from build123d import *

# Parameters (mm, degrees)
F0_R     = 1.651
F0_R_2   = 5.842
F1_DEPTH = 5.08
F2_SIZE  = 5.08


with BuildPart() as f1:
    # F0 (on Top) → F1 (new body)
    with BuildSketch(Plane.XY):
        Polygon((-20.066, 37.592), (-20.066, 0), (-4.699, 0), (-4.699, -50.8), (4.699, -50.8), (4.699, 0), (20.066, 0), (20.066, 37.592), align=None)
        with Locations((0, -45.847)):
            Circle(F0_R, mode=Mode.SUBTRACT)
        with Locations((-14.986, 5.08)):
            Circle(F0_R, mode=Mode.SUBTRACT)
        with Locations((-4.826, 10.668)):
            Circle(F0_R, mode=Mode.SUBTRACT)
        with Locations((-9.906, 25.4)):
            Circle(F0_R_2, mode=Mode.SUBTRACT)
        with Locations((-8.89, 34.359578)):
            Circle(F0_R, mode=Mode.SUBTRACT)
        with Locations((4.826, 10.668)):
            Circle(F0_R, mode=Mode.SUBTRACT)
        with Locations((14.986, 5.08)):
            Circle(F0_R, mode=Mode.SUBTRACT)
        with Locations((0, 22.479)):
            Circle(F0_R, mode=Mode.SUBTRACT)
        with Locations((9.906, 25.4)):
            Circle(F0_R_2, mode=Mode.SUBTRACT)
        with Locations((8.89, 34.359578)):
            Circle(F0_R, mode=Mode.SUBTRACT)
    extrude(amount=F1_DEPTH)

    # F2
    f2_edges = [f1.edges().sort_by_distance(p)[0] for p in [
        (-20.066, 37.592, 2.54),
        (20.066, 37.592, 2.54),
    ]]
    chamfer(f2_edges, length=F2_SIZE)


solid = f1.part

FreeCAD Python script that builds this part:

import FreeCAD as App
import Part
import Sketcher
from FreeCAD import Vector
Q = App.Units.Quantity


def edges_at(feature, points):
    """Names of the edges that pass closest to the given points."""
    edges = feature.Shape.Edges
    near = lambda p: min(range(len(edges)), key=lambda i: edges[i].distToShape(Part.Vertex(*p))[0])
    return sorted({f"Edge{near(p) + 1}" for p in points})


def add_polygon(sketch, points):
    """Adds a closed chain of lines whose ends are joined by coincident constraints."""
    first, n = sketch.GeometryCount, len(points)
    for a, b in zip(points, points[1:] + points[:1]):
        sketch.addGeometry(Part.LineSegment(App.Vector(*a, 0), App.Vector(*b, 0)), False)
    for i in range(n):
        sketch.addConstraint(Sketcher.Constraint("Coincident", first + i, 2, first + (i + 1) % n, 1))

doc = App.newDocument("Part")
body = doc.addObject("PartDesign::Body", "Body")

# Sketch on XY plane
sketch1 = doc.addObject("Sketcher::SketchObject", "Sketch")
body.addObject(sketch1)
sketch1.AttachmentSupport = (doc.XY_Plane, [""])
sketch1.MapMode = "FlatFace"
add_polygon(sketch1, [(-20.1, 37.6), (-20.1, 0), (-4.7, 0), (-4.7, -50.8), (4.7, -50.8), (4.7, 0), (20.1, 0), (20.1, 37.6)])  # lines 0-7
sketch1.addGeometry(Part.Circle(Vector(0, -45.8, 0), Vector(0, 0, 1), 1.7), False)  # 8
sketch1.addGeometry(Part.Circle(Vector(-15, 5.1, 0), Vector(0, 0, 1), 1.7), False)  # 9
sketch1.addGeometry(Part.Circle(Vector(-4.8, 10.7, 0), Vector(0, 0, 1), 1.7), False)  # 10
sketch1.addGeometry(Part.Circle(Vector(-9.9, 25.4, 0), Vector(0, 0, 1), 5.8), False)  # 11
sketch1.addGeometry(Part.Circle(Vector(-8.9, 34.4, 0), Vector(0, 0, 1), 1.7), False)  # 12
sketch1.addGeometry(Part.Circle(Vector(4.8, 10.7, 0), Vector(0, 0, 1), 1.7), False)  # 13
sketch1.addGeometry(Part.Circle(Vector(15, 5.1, 0), Vector(0, 0, 1), 1.7), False)  # 14
sketch1.addGeometry(Part.Circle(Vector(0, 22.5, 0), Vector(0, 0, 1), 1.7), False)  # 15
sketch1.addGeometry(Part.Circle(Vector(9.9, 25.4, 0), Vector(0, 0, 1), 5.8), False)  # 16
sketch1.addGeometry(Part.Circle(Vector(8.9, 34.4, 0), Vector(0, 0, 1), 1.7), False)  # 17
sketch1.addConstraint([
    Sketcher.Constraint("Vertical", 0),
    Sketcher.Constraint("Horizontal", 1),
    Sketcher.Constraint("Vertical", 2),
    Sketcher.Constraint("Horizontal", 3),
    Sketcher.Constraint("Vertical", 4),
    Sketcher.Constraint("Horizontal", 5),
    Sketcher.Constraint("Vertical", 6),
    Sketcher.Constraint("Horizontal", 7),
    Sketcher.Constraint("Equal", 8, 9),
    Sketcher.Constraint("Equal", 9, 10),
    Sketcher.Constraint("Equal", 10, 12),
    Sketcher.Constraint("Equal", 12, 13),
    Sketcher.Constraint("Equal", 13, 14),
    Sketcher.Constraint("Equal", 14, 15),
    Sketcher.Constraint("Equal", 11, 16),
    Sketcher.Constraint("Equal", 15, 17),
    Sketcher.Constraint("Symmetric", 1, 2, 4, 2, -1, 1),
    Sketcher.Constraint("Symmetric", 10, 3, 13, 3, -2),
    Sketcher.Constraint("Symmetric", 9, 3, 14, 3, -2),
    Sketcher.Constraint("Symmetric", 11, 3, 16, 3, -2),
    Sketcher.Constraint("Symmetric", 12, 3, 17, 3, -2),
    Sketcher.Constraint("Symmetric", 0, 2, 5, 2, -2),
    Sketcher.Constraint("PointOnObject", 8, 3, -2),
    Sketcher.Constraint("PointOnObject", 15, 3, -2),
    Sketcher.Constraint("Diameter", 8, Q("0.13 in")),
    Sketcher.Constraint("Diameter", 11, Q("0.46 in")),
    Sketcher.Constraint("DistanceY", 2, 2, 2, 1, Q("2 in")),
    Sketcher.Constraint("DistanceY", -1, 1, 11, 3, Q("1 in")),
    Sketcher.Constraint("DistanceX", 3, 1, 3, 2, Q("0.37 in")),
    Sketcher.Constraint("DistanceX", 7, 2, 7, 1, Q("1.58 in")),
    Sketcher.Constraint("DistanceY", 0, 2, 0, 1, Q("1.48 in")),
    Sketcher.Constraint("DistanceY", -1, 1, 9, 3, Q("0.2 in")),
    Sketcher.Constraint("DistanceX", 9, 3, 10, 3, Q("0.4 in")),
    Sketcher.Constraint("DistanceX", 11, 3, 10, 3, Q("0.2 in")),
    Sketcher.Constraint("DistanceX", 12, 3, 17, 3, Q("0.7 in")),
    Sketcher.Constraint("DistanceX", 0, 2, 9, 3, Q("0.2 in")),
    Sketcher.Constraint("DistanceY", -1, 1, 10, 3, Q("0.42 in")),
    Sketcher.Constraint("DistanceY", 8, 3, -1, 1, Q("1.805 in")),
    Sketcher.Constraint("DistanceY", -1, 1, 15, 3, Q("0.885 in")),
    Sketcher.Constraint("DistanceY", 10, 3, 12, 3, Q("23.691578 mm")),
])
pad1 = doc.addObject("PartDesign::Pad", "Pad")
body.addObject(pad1)
pad1.Profile = sketch1
pad1.Length = Q("0.2 in")
doc.recompute()

chamfer = doc.addObject("PartDesign::Chamfer", "Chamfer")
body.addObject(chamfer)
chamfer.Base = (pad1, edges_at(pad1, [(-20.066, 37.592, 2.54), (20.066, 37.592, 2.54)]))
chamfer.Size = Q("0.2 in")

doc.recompute()
